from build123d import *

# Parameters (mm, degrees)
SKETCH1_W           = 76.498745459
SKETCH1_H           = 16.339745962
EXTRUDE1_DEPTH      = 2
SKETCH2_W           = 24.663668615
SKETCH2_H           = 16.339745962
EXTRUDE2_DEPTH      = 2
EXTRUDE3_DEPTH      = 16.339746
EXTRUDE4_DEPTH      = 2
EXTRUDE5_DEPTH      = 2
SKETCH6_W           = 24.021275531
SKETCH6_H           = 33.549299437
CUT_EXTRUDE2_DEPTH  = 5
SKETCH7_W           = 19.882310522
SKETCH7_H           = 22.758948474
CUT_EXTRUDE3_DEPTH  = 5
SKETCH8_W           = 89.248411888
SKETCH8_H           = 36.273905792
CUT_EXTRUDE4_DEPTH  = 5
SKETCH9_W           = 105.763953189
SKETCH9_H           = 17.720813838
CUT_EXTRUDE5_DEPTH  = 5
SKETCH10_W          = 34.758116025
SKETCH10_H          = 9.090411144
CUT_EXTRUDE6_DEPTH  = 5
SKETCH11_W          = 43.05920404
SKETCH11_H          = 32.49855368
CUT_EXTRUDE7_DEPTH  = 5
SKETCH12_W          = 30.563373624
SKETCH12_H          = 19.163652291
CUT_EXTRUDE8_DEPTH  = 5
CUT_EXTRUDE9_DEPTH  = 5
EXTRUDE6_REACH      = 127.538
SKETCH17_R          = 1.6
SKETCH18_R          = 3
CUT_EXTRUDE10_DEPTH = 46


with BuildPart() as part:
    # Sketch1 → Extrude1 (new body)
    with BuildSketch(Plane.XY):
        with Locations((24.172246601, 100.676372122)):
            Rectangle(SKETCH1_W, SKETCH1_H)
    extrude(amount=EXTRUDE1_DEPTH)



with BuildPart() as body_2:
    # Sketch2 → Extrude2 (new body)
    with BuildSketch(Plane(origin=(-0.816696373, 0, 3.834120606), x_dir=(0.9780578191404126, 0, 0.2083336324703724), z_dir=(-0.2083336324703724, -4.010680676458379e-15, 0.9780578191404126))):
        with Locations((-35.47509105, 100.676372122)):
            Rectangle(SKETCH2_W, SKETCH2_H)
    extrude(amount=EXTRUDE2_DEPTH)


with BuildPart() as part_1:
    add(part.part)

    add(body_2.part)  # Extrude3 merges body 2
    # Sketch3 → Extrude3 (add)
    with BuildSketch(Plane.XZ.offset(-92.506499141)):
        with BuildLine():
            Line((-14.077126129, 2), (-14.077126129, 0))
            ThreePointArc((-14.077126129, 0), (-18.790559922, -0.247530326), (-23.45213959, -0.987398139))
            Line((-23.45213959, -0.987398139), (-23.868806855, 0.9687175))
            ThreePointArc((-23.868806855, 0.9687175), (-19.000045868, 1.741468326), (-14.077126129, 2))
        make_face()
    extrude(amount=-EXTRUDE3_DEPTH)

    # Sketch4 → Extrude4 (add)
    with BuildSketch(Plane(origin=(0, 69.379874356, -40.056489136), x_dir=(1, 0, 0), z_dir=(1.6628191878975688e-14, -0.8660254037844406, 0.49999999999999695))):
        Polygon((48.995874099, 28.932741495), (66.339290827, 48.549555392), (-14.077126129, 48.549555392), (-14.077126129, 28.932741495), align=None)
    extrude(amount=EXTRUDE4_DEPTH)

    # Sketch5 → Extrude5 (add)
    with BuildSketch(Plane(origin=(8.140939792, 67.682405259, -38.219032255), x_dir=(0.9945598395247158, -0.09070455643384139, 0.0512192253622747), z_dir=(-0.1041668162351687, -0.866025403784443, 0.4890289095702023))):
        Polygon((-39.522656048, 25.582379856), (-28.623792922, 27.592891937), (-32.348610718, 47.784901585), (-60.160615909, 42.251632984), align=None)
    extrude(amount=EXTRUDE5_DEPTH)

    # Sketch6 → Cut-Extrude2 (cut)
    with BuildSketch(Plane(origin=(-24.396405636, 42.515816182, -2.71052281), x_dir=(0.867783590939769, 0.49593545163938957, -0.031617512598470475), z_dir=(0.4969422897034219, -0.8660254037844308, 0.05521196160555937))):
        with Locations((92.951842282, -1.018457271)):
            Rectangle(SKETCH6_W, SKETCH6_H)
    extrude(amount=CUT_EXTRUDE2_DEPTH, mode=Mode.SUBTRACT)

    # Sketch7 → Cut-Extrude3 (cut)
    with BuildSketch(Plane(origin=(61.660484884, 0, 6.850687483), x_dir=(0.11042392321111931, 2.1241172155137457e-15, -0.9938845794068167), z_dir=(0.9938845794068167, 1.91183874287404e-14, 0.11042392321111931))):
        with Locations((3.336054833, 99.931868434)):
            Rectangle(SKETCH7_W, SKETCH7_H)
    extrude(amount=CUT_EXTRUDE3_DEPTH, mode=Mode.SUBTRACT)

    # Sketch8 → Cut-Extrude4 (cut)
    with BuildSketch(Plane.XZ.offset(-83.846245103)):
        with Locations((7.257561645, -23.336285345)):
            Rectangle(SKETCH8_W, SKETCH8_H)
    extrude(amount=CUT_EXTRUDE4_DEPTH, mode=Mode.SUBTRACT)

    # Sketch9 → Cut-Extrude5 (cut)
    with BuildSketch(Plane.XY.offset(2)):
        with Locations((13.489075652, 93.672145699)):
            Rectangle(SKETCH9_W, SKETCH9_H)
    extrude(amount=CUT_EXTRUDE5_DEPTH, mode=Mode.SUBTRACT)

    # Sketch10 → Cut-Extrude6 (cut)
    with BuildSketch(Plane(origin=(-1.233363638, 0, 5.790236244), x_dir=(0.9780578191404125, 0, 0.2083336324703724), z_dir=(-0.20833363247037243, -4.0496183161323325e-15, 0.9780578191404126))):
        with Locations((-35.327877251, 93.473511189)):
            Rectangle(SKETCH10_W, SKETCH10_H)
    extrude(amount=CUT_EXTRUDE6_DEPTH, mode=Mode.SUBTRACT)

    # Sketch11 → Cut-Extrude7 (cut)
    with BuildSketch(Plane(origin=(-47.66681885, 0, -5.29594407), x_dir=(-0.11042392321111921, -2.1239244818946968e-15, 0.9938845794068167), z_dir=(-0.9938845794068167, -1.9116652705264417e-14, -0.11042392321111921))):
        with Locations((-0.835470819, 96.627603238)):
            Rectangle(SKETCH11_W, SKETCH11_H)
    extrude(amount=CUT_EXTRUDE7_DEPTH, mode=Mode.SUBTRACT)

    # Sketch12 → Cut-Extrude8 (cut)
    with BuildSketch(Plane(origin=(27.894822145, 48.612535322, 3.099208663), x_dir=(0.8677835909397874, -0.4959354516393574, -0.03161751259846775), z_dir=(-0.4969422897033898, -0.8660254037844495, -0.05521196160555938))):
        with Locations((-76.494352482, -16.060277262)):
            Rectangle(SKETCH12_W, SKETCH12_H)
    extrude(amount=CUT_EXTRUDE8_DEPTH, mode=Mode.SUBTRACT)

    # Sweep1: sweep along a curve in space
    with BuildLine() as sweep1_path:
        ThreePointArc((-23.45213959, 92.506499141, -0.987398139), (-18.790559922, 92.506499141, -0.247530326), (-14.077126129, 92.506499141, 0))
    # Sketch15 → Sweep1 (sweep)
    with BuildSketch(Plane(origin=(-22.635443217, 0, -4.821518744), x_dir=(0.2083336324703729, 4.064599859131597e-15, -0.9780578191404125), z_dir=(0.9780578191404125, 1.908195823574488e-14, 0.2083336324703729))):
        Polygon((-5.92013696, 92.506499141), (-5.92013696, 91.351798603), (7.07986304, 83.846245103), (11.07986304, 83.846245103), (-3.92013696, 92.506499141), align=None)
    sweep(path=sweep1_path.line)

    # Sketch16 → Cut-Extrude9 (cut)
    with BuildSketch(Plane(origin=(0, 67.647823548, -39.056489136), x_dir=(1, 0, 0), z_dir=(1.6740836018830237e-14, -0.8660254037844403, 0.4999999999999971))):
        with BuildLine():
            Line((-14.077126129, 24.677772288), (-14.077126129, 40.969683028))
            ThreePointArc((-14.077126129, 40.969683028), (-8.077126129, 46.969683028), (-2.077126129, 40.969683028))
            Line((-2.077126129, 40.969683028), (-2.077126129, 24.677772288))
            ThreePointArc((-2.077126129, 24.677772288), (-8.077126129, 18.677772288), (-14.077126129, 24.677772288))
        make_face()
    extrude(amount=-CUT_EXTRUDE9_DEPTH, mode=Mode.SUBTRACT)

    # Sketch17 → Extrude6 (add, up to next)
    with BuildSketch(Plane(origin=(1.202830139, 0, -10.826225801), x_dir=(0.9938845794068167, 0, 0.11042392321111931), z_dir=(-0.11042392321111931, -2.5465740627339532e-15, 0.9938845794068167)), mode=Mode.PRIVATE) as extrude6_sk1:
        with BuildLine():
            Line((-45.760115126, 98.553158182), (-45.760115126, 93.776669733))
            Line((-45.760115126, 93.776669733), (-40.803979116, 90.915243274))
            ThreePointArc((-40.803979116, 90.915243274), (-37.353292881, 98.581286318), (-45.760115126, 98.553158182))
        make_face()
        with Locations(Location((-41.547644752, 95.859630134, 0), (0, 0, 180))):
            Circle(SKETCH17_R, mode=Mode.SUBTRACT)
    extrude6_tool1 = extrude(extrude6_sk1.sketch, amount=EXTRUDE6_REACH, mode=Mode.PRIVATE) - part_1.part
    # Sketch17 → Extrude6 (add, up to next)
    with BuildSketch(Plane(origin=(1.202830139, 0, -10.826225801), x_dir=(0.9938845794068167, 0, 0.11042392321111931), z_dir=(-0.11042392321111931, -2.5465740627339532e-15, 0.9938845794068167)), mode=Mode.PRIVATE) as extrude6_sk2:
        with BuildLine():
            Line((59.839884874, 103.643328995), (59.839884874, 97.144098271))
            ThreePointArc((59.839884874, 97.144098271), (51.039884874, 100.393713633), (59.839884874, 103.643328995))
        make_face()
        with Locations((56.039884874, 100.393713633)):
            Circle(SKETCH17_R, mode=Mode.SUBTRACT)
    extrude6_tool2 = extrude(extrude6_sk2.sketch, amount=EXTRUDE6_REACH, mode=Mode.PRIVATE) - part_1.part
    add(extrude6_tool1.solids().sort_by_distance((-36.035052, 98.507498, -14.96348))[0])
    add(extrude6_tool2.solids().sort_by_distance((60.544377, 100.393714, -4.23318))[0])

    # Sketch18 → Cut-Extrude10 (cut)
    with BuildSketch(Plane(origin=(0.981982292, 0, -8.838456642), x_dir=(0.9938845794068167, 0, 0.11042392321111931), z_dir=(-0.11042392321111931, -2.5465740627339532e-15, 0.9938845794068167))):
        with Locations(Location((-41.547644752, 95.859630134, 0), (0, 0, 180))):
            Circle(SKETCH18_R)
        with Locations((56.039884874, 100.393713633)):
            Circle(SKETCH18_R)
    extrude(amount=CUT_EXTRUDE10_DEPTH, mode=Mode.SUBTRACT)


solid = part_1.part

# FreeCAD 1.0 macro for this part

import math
import FreeCAD as App
import Part
import Sketcher
Q = App.Units.Quantity

doc = App.newDocument("Part")
body = doc.addObject("PartDesign::Body", "Body")

# Sketch on XY plane
sketch1 = doc.addObject("Sketcher::SketchObject", "Sketch")
body.addObject(sketch1)
sketch1.AttachmentSupport = (doc.XY_Plane, [""])
sketch1.MapMode = "FlatFace"
sketch1.addGeometry(Part.LineSegment(App.Vector(-14.077126, 108.846245, 0), App.Vector(-14.077126, 92.506499, 0)), False)
sketch1.addGeometry(Part.LineSegment(App.Vector(-14.077126, 92.506499, 0), App.Vector(62.421619, 92.506499, 0)), False)
sketch1.addGeometry(Part.LineSegment(App.Vector(62.421619, 92.506499, 0), App.Vector(62.421619, 108.846245, 0)), False)
sketch1.addGeometry(Part.LineSegment(App.Vector(62.421619, 108.846245, 0), App.Vector(-14.077126, 108.846245, 0)), False)
sketch1.addConstraint(Sketcher.Constraint("Coincident", 0, 2, 1, 1))
sketch1.addConstraint(Sketcher.Constraint("Coincident", 1, 2, 2, 1))
sketch1.addConstraint(Sketcher.Constraint("Coincident", 2, 2, 3, 1))
sketch1.addConstraint(Sketcher.Constraint("Coincident", 3, 2, 0, 1))
sketch1.addConstraint(Sketcher.Constraint("Vertical", 0))
sketch1.addConstraint(Sketcher.Constraint("Horizontal", 1))
sketch1.addConstraint(Sketcher.Constraint("Vertical", 2))
sketch1.addConstraint(Sketcher.Constraint("Horizontal", 3))
sketch1.addConstraint(Sketcher.Constraint("DistanceY", -1, 1, 0, 2, 92.506499))
sketch1.addConstraint(Sketcher.Constraint("DistanceX", 1, 1, 1, 2, 76.498745))
sketch1.addConstraint(Sketcher.Constraint("DistanceY", 0, 2, 0, 1, 16.339746))
sketch1.addConstraint(Sketcher.Constraint("DistanceX", -1, 1, 1, 2, 62.421619))
pad1 = doc.addObject("PartDesign::Pad", "Pad")
body.addObject(pad1)
pad1.Profile = sketch1
pad1.Length = 2
body2 = doc.addObject("PartDesign::Body", "Body001")

# Sketch on an angled plane
sketch2 = doc.addObject("Sketcher::SketchObject", "Sketch001")
body2.addObject(sketch2)
sketch2.Placement = App.Placement(App.Vector(-0.816696, 0, 3.834121), App.Rotation(App.Vector(0.978057819, 0, 0.208333632), App.Vector(0, 1, 0), App.Vector(-0.208333632, 0, 0.978057819), "ZXY"))
sketch2.addGeometry(Part.LineSegment(App.Vector(-47.806925, 108.846245, 0), App.Vector(-47.806925, 92.506499, 0)), False)
sketch2.addGeometry(Part.LineSegment(App.Vector(-47.806925, 92.506499, 0), App.Vector(-23.143257, 92.506499, 0)), False)
sketch2.addGeometry(Part.LineSegment(App.Vector(-23.143257, 92.506499, 0), App.Vector(-23.143257, 108.846245, 0)), False)
sketch2.addGeometry(Part.LineSegment(App.Vector(-23.143257, 108.846245, 0), App.Vector(-47.806925, 108.846245, 0)), False)
sketch2.addConstraint(Sketcher.Constraint("Coincident", 0, 2, 1, 1))
sketch2.addConstraint(Sketcher.Constraint("Coincident", 1, 2, 2, 1))
sketch2.addConstraint(Sketcher.Constraint("Coincident", 2, 2, 3, 1))
sketch2.addConstraint(Sketcher.Constraint("Coincident", 3, 2, 0, 1))
sketch2.addConstraint(Sketcher.Constraint("Vertical", 0))
sketch2.addConstraint(Sketcher.Constraint("Horizontal", 1))
sketch2.addConstraint(Sketcher.Constraint("Vertical", 2))
sketch2.addConstraint(Sketcher.Constraint("Horizontal", 3))
sketch2.addConstraint(Sketcher.Constraint("DistanceX", 1, 1, 1, 2, 24.663669))
sketch2.addConstraint(Sketcher.Constraint("DistanceY", -1, 1, 0, 2, 92.506499))
sketch2.addConstraint(Sketcher.Constraint("DistanceY", 0, 2, 0, 1, 16.339746))
sketch2.addConstraint(Sketcher.Constraint("DistanceX", 0, 2, -1, 1, 47.806925))
pad2 = doc.addObject("PartDesign::Pad", "Pad001")
body2.addObject(pad2)
pad2.Profile = sketch2
pad2.Length = 2
body.AllowCompound = True
doc.recompute()

boolean = doc.addObject("PartDesign::Boolean", "Boolean")
body.addObject(boolean)
boolean.Type = "Fuse"
boolean.addObjects([body2])

# Sketch on XZ plane
sketch3 = doc.addObject("Sketcher::SketchObject", "Sketch002")
body.addObject(sketch3)
sketch3.AttachmentSupport = (doc.XZ_Plane, [""])
sketch3.MapMode = "FlatFace"
sketch3.AttachmentOffset = App.Placement(App.Vector(0, 0, -92.506499), App.Rotation())
sketch3.addGeometry(Part.LineSegment(App.Vector(-14.077126, 0, 0), App.Vector(-14.077126, 2, 0)), False)
sketch3.addGeometry(Part.ArcOfCircle(Part.Circle(App.Vector(-14.077126, -45, 0), App.Vector(0, 0, 1), 47), math.radians(90), math.radians(102.024717)), False)
sketch3.addGeometry(Part.LineSegment(App.Vector(-23.868807, 0.968718, 0), App.Vector(-23.45214, -0.987398, 0)), False)
sketch3.addGeometry(Part.ArcOfCircle(Part.Circle(App.Vector(-14.077126, -45, 0), App.Vector(0, 0, 1), 45), math.radians(90), math.radians(102.024717)), False)
sketch3.addConstraint(Sketcher.Constraint("Coincident", 0, 2, 1, 1))
sketch3.addConstraint(Sketcher.Constraint("Coincident", 1, 2, 2, 1))
sketch3.addConstraint(Sketcher.Constraint("Coincident", 2, 2, 3, 2))
sketch3.addConstraint(Sketcher.Constraint("Coincident", 3, 1, 0, 1))
sketch3.addConstraint(Sketcher.Constraint("Vertical", 0))
sketch3.addConstraint(Sketcher.Constraint("Coincident", 3, 3, 1, 3))
sketch3.addConstraint(Sketcher.Constraint("PointOnObject", 3, 1, -1))
sketch3.addConstraint(Sketcher.Constraint("Vertical", 3, 3, 0, 2))
sketch3.addConstraint(Sketcher.Constraint("Radius", 1, 47.0))
sketch3.addConstraint(Sketcher.Constraint("Radius", 3, 45.0))
sketch3.addConstraint(Sketcher.Constraint("DistanceY", 2, 2, -1, 1, 0.987398))
sketch3.addConstraint(Sketcher.Constraint("DistanceX", 2, 2, -1, 1, 23.45214))
sketch3.addConstraint(Sketcher.Constraint("DistanceX", 1, 2, 0, 2, 9.791681))
pad3 = doc.addObject("PartDesign::Pad", "Pad002")
body.addObject(pad3)
pad3.Profile = sketch3
pad3.Length = 16.339746
pad3.Reversed = True

# Sketch on an angled plane
sketch4 = doc.addObject("Sketcher::SketchObject", "Sketch003")
body.addObject(sketch4)
sketch4.Placement = App.Placement(App.Vector(0, 69.379874, -40.056489), App.Rotation(App.Vector(1, 0, 0), App.Vector(0, 0.5, 0.866025404), App.Vector(0, -0.866025404, 0.5), "ZXY"))
sketch4.addGeometry(Part.LineSegment(App.Vector(48.995874, 28.932742, 0), App.Vector(66.339291, 48.549555, 0)), False)
sketch4.addGeometry(Part.LineSegment(App.Vector(66.339291, 48.549555, 0), App.Vector(-14.077126, 48.549555, 0)), False)
sketch4.addGeometry(Part.LineSegment(App.Vector(-14.077126, 48.549555, 0), App.Vector(-14.077126, 28.932742, 0)), False)
sketch4.addGeometry(Part.LineSegment(App.Vector(-14.077126, 28.932742, 0), App.Vector(48.995874, 28.932742, 0)), False)
sketch4.addConstraint(Sketcher.Constraint("Coincident", 0, 2, 1, 1))
sketch4.addConstraint(Sketcher.Constraint("Coincident", 1, 2, 2, 1))
sketch4.addConstraint(Sketcher.Constraint("Coincident", 2, 2, 3, 1))
sketch4.addConstraint(Sketcher.Constraint("Coincident", 3, 2, 0, 1))
sketch4.addConstraint(Sketcher.Constraint("Horizontal", 1))
sketch4.addConstraint(Sketcher.Constraint("Vertical", 2))
sketch4.addConstraint(Sketcher.Constraint("Horizontal", 3))
sketch4.addConstraint(Sketcher.Constraint("DistanceX", 3, 1, 3, 2, 63.073))
sketch4.addConstraint(Sketcher.Constraint("DistanceX", 1, 2, 1, 1, 80.416417))
sketch4.addConstraint(Sketcher.Constraint("DistanceY", 2, 2, 2, 1, 19.616814))
sketch4.addConstraint(Sketcher.Constraint("DistanceX", -1, 1, 0, 2, 66.339291))
sketch4.addConstraint(Sketcher.Constraint("DistanceY", -1, 1, 2, 2, 28.932742))
pad4 = doc.addObject("PartDesign::Pad", "Pad003")
body.addObject(pad4)
pad4.Profile = sketch4
pad4.Length = 2

# Sketch on an angled plane
sketch5 = doc.addObject("Sketcher::SketchObject", "Sketch004")
body.addObject(sketch5)
sketch5.Placement = App.Placement(App.Vector(8.14094, 67.682405, -38.219032), App.Rotation(App.Vector(0.99455984, -0.090704556, 0.051219225), App.Vector(0, 0.491703858, 0.870762492), App.Vector(-0.104166816, -0.866025404, 0.48902891), "ZXY"))
sketch5.addGeometry(Part.LineSegment(App.Vector(-39.522656, 25.58238, 0), App.Vector(-28.623793, 27.592892, 0)), False)
sketch5.addGeometry(Part.LineSegment(App.Vector(-28.623793, 27.592892, 0), App.Vector(-32.348611, 47.784902, 0)), False)
sketch5.addGeometry(Part.LineSegment(App.Vector(-32.348611, 47.784902, 0), App.Vector(-60.160616, 42.251633, 0)), False)
sketch5.addGeometry(Part.LineSegment(App.Vector(-60.160616, 42.251633, 0), App.Vector(-39.522656, 25.58238, 0)), False)
sketch5.addConstraint(Sketcher.Constraint("Coincident", 0, 2, 1, 1))
sketch5.addConstraint(Sketcher.Constraint("Coincident", 1, 2, 2, 1))
sketch5.addConstraint(Sketcher.Constraint("Coincident", 2, 2, 3, 1))
sketch5.addConstraint(Sketcher.Constraint("Coincident", 3, 2, 0, 1))
sketch5.addConstraint(Sketcher.Constraint("Perpendicular", 0, 1))
sketch5.addConstraint(Sketcher.Constraint("DistanceY", -1, 1, 1, 2, 47.784902))
sketch5.addConstraint(Sketcher.Constraint("Distance", 0, 11.082751))
sketch5.addConstraint(Sketcher.Constraint("Distance", 3, 26.529029))
sketch5.addConstraint(Sketcher.Constraint("DistanceY", -1, 1, 0, 2, 27.592892))
sketch5.addConstraint(Sketcher.Constraint("DistanceX", 1, 2, -1, 1, 32.348611))
sketch5.addConstraint(Sketcher.Constraint("DistanceY", -1, 1, 3, 2, 25.58238))
sketch5.addConstraint(Sketcher.Constraint("DistanceY", 2, 2, 1, 2, 5.533269))
pad5 = doc.addObject("PartDesign::Pad", "Pad004")
body.addObject(pad5)
pad5.Profile = sketch5
pad5.Length = 2

# Sketch on an angled plane
sketch6 = doc.addObject("Sketcher::SketchObject", "Sketch005")
body.addObject(sketch6)
sketch6.Placement = App.Placement(App.Vector(-24.396406, 42.515816, -2.710523), App.Rotation(App.Vector(0.867783591, 0.495935452, -0.031617513), App.Vector(0, 0.063624114, 0.997973934), App.Vector(0.49694229, -0.866025404, 0.055211962), "ZXY"))
sketch6.addGeometry(Part.LineSegment(App.Vector(80.941205, 15.756192, 0), App.Vector(80.941205, -17.793107, 0)), False)
sketch6.addGeometry(Part.LineSegment(App.Vector(80.941205, -17.793107, 0), App.Vector(104.96248, -17.793107, 0)), False)
sketch6.addGeometry(Part.LineSegment(App.Vector(104.96248, -17.793107, 0), App.Vector(104.96248, 15.756192, 0)), False)
sketch6.addGeometry(Part.LineSegment(App.Vector(104.96248, 15.756192, 0), App.Vector(80.941205, 15.756192, 0)), False)
sketch6.addConstraint(Sketcher.Constraint("Coincident", 0, 2, 1, 1))
sketch6.addConstraint(Sketcher.Constraint("Coincident", 1, 2, 2, 1))
sketch6.addConstraint(Sketcher.Constraint("Coincident", 2, 2, 3, 1))
sketch6.addConstraint(Sketcher.Constraint("Coincident", 3, 2, 0, 1))
sketch6.addConstraint(Sketcher.Constraint("Vertical", 0))
sketch6.addConstraint(Sketcher.Constraint("Horizontal", 1))
sketch6.addConstraint(Sketcher.Constraint("Vertical", 2))
sketch6.addConstraint(Sketcher.Constraint("Horizontal", 3))
sketch6.addConstraint(Sketcher.Constraint("DistanceY", 0, 2, 0, 1, 33.549299))
sketch6.addConstraint(Sketcher.Constraint("DistanceX", 1, 1, 1, 2, 24.021276))
sketch6.addConstraint(Sketcher.Constraint("DistanceX", -1, 1, 1, 2, 104.96248))
sketch6.addConstraint(Sketcher.Constraint("DistanceY", 0, 2, -1, 1, 17.793107))
pocket1 = doc.addObject("PartDesign::Pocket", "Pocket")
body.addObject(pocket1)
pocket1.Profile = sketch6
pocket1.Length = 5
pocket1.Reversed = True

# Sketch on an angled plane
sketch7 = doc.addObject("Sketcher::SketchObject", "Sketch006")
body.addObject(sketch7)
sketch7.Placement = App.Placement(App.Vector(61.660485, 0, 6.850687), App.Rotation(App.Vector(0.110423923, 0, -0.993884579), App.Vector(0, 0.999999999, 0), App.Vector(0.993884579, 0, 0.110423923), "ZXY"))
sketch7.addGeometry(Part.LineSegment(App.Vector(-6.6051, 111.311342, 0), App.Vector(-6.6051, 88.552394, 0)), False)
sketch7.addGeometry(Part.LineSegment(App.Vector(-6.6051, 88.552394, 0), App.Vector(13.27721, 88.552394, 0)), False)
sketch7.addGeometry(Part.LineSegment(App.Vector(13.27721, 88.552394, 0), App.Vector(13.27721, 111.311342, 0)), False)
sketch7.addGeometry(Part.LineSegment(App.Vector(13.27721, 111.311342, 0), App.Vector(-6.6051, 111.311342, 0)), False)
sketch7.addConstraint(Sketcher.Constraint("Coincident", 0, 2, 1, 1))
sketch7.addConstraint(Sketcher.Constraint("Coincident", 1, 2, 2, 1))
sketch7.addConstraint(Sketcher.Constraint("Coincident", 2, 2, 3, 1))
sketch7.addConstraint(Sketcher.Constraint("Coincident", 3, 2, 0, 1))
sketch7.addConstraint(Sketcher.Constraint("Vertical", 0))
sketch7.addConstraint(Sketcher.Constraint("Horizontal", 1))
sketch7.addConstraint(Sketcher.Constraint("Vertical", 2))
sketch7.addConstraint(Sketcher.Constraint("Horizontal", 3))
sketch7.addConstraint(Sketcher.Constraint("DistanceX", 1, 1, 1, 2, 19.882311))
sketch7.addConstraint(Sketcher.Constraint("DistanceY", 0, 2, 0, 1, 22.758948))
sketch7.addConstraint(Sketcher.Constraint("DistanceX", 0, 2, -1, 1, 6.6051))
sketch7.addConstraint(Sketcher.Constraint("DistanceY", -1, 1, 0, 2, 88.552394))
pocket2 = doc.addObject("PartDesign::Pocket", "Pocket001")
body.addObject(pocket2)
pocket2.Profile = sketch7
pocket2.Length = 5
pocket2.Reversed = True

# Sketch on XZ plane
sketch8 = doc.addObject("Sketcher::SketchObject", "Sketch007")
body.addObject(sketch8)
sketch8.AttachmentSupport = (doc.XZ_Plane, [""])
sketch8.MapMode = "FlatFace"
sketch8.AttachmentOffset = App.Placement(App.Vector(0, 0, -83.846245), App.Rotation())
sketch8.addGeometry(Part.LineSegment(App.Vector(-37.366644, -5.199332, 0), App.Vector(-37.366644, -41.473238, 0)), False)
sketch8.addGeometry(Part.LineSegment(App.Vector(-37.366644, -41.473238, 0), App.Vector(51.881768, -41.473238, 0)), False)
sketch8.addGeometry(Part.LineSegment(App.Vector(51.881768, -41.473238, 0), App.Vector(51.881768, -5.199332, 0)), False)
sketch8.addGeometry(Part.LineSegment(App.Vector(51.881768, -5.199332, 0), App.Vector(-37.366644, -5.199332, 0)), False)
sketch8.addConstraint(Sketcher.Constraint("Coincident", 0, 2, 1, 1))
sketch8.addConstraint(Sketcher.Constraint("Coincident", 1, 2, 2, 1))
sketch8.addConstraint(Sketcher.Constraint("Coincident", 2, 2, 3, 1))
sketch8.addConstraint(Sketcher.Constraint("Coincident", 3, 2, 0, 1))
sketch8.addConstraint(Sketcher.Constraint("Vertical", 0))
sketch8.addConstraint(Sketcher.Constraint("Horizontal", 1))
sketch8.addConstraint(Sketcher.Constraint("Vertical", 2))
sketch8.addConstraint(Sketcher.Constraint("Horizontal", 3))
sketch8.addConstraint(Sketcher.Constraint("DistanceX", 1, 1, 1, 2, 89.248412))
sketch8.addConstraint(Sketcher.Constraint("DistanceY", 0, 2, 0, 1, 36.273906))
sketch8.addConstraint(Sketcher.Constraint("DistanceY", 0, 2, -1, 1, 41.473238))
sketch8.addConstraint(Sketcher.Constraint("DistanceX", 0, 2, -1, 1, 37.366644))
pocket3 = doc.addObject("PartDesign::Pocket", "Pocket002")
body.addObject(pocket3)
pocket3.Profile = sketch8
pocket3.Length = 5
pocket3.Reversed = True

# Sketch on XY plane
sketch9 = doc.addObject("Sketcher::SketchObject", "Sketch008")
body.addObject(sketch9)
sketch9.AttachmentSupport = (doc.XY_Plane, [""])
sketch9.MapMode = "FlatFace"
sketch9.AttachmentOffset = App.Placement(App.Vector(0, 0, 2), App.Rotation())
sketch9.addGeometry(Part.LineSegment(App.Vector(-39.392901, 102.532553, 0), App.Vector(-39.392901, 84.811739, 0)), False)
sketch9.addGeometry(Part.LineSegment(App.Vector(-39.392901, 84.811739, 0), App.Vector(66.371052, 84.811739, 0)), False)
sketch9.addGeometry(Part.LineSegment(App.Vector(66.371052, 84.811739, 0), App.Vector(66.371052, 102.532553, 0)), False)
sketch9.addGeometry(Part.LineSegment(App.Vector(66.371052, 102.532553, 0), App.Vector(-39.392901, 102.532553, 0)), False)
sketch9.addConstraint(Sketcher.Constraint("Coincident", 0, 2, 1, 1))
sketch9.addConstraint(Sketcher.Constraint("Coincident", 1, 2, 2, 1))
sketch9.addConstraint(Sketcher.Constraint("Coincident", 2, 2, 3, 1))
sketch9.addConstraint(Sketcher.Constraint("Coincident", 3, 2, 0, 1))
sketch9.addConstraint(Sketcher.Constraint("Vertical", 0))
sketch9.addConstraint(Sketcher.Constraint("Horizontal", 1))
sketch9.addConstraint(Sketcher.Constraint("Vertical", 2))
sketch9.addConstraint(Sketcher.Constraint("Horizontal", 3))
sketch9.addConstraint(Sketcher.Constraint("DistanceX", 0, 2, -1, 1, 39.392901))
sketch9.addConstraint(Sketcher.Constraint("DistanceX", 1, 1, 1, 2, 105.763953))
sketch9.addConstraint(Sketcher.Constraint("DistanceY", 0, 2, 0, 1, 17.720814))
sketch9.addConstraint(Sketcher.Constraint("DistanceY", -1, 1, 0, 2, 84.811739))
pocket4 = doc.addObject("PartDesign::Pocket", "Pocket003")
body.addObject(pocket4)
pocket4.Profile = sketch9
pocket4.Length = 5
pocket4.Reversed = True

# Sketch on an angled plane
sketch10 = doc.addObject("Sketcher::SketchObject", "Sketch009")
body.addObject(sketch10)
sketch10.Placement = App.Placement(App.Vector(-1.233364, 0, 5.790236), App.Rotation(App.Vector(0.978057819, 0, 0.208333632), App.Vector(0, 1, 0), App.Vector(-0.208333632, 0, 0.978057819), "ZXY"))
sketch10.addGeometry(Part.LineSegment(App.Vector(-52.706935, 98.018717, 0), App.Vector(-52.706935, 88.928306, 0)), False)
sketch10.addGeometry(Part.LineSegment(App.Vector(-52.706935, 88.928306, 0), App.Vector(-17.948819, 88.928306, 0)), False)
sketch10.addGeometry(Part.LineSegment(App.Vector(-17.948819, 88.928306, 0), App.Vector(-17.948819, 98.018717, 0)), False)
sketch10.addGeometry(Part.LineSegment(App.Vector(-17.948819, 98.018717, 0), App.Vector(-52.706935, 98.018717, 0)), False)
sketch10.addConstraint(Sketcher.Constraint("Coincident", 0, 2, 1, 1))
sketch10.addConstraint(Sketcher.Constraint("Coincident", 1, 2, 2, 1))
sketch10.addConstraint(Sketcher.Constraint("Coincident", 2, 2, 3, 1))
sketch10.addConstraint(Sketcher.Constraint("Coincident", 3, 2, 0, 1))
sketch10.addConstraint(Sketcher.Constraint("Vertical", 0))
sketch10.addConstraint(Sketcher.Constraint("Horizontal", 1))
sketch10.addConstraint(Sketcher.Constraint("Vertical", 2))
sketch10.addConstraint(Sketcher.Constraint("Horizontal", 3))
sketch10.addConstraint(Sketcher.Constraint("DistanceY", 0, 2, 0, 1, 9.090411))
sketch10.addConstraint(Sketcher.Constraint("DistanceX", 1, 1, 1, 2, 34.758116))
sketch10.addConstraint(Sketcher.Constraint("DistanceX", 1, 2, -1, 1, 17.948819))
sketch10.addConstraint(Sketcher.Constraint("DistanceY", -1, 1, 0, 2, 88.928306))
pocket5 = doc.addObject("PartDesign::Pocket", "Pocket004")
body.addObject(pocket5)
pocket5.Profile = sketch10
pocket5.Length = 5
pocket5.Reversed = True

# Sketch on an angled plane
sketch11 = doc.addObject("Sketcher::SketchObject", "Sketch010")
body.addObject(sketch11)
sketch11.Placement = App.Placement(App.Vector(-47.666819, 0, -5.295944), App.Rotation(App.Vector(-0.110423923, 0, 0.993884579), App.Vector(0, 0.999999999, 0), App.Vector(-0.993884579, 0, -0.110423923), "ZXY"))
sketch11.addGeometry(Part.LineSegment(App.Vector(-22.365073, 112.87688, 0), App.Vector(-22.365073, 80.378326, 0)), False)
sketch11.addGeometry(Part.LineSegment(App.Vector(-22.365073, 80.378326, 0), App.Vector(20.694131, 80.378326, 0)), False)
sketch11.addGeometry(Part.LineSegment(App.Vector(20.694131, 80.378326, 0), App.Vector(20.694131, 112.87688, 0)), False)
sketch11.addGeometry(Part.LineSegment(App.Vector(20.694131, 112.87688, 0), App.Vector(-22.365073, 112.87688, 0)), False)
sketch11.addConstraint(Sketcher.Constraint("Coincident", 0, 2, 1, 1))
sketch11.addConstraint(Sketcher.Constraint("Coincident", 1, 2, 2, 1))
sketch11.addConstraint(Sketcher.Constraint("Coincident", 2, 2, 3, 1))
sketch11.addConstraint(Sketcher.Constraint("Coincident", 3, 2, 0, 1))
sketch11.addConstraint(Sketcher.Constraint("Vertical", 0))
sketch11.addConstraint(Sketcher.Constraint("Horizontal", 1))
sketch11.addConstraint(Sketcher.Constraint("Vertical", 2))
sketch11.addConstraint(Sketcher.Constraint("Horizontal", 3))
sketch11.addConstraint(Sketcher.Constraint("DistanceX", 1, 1, 1, 2, 43.059204))
sketch11.addConstraint(Sketcher.Constraint("DistanceY", 0, 2, 0, 1, 32.498554))
sketch11.addConstraint(Sketcher.Constraint("DistanceX", -1, 1, 1, 2, 20.694131))
sketch11.addConstraint(Sketcher.Constraint("DistanceY", -1, 1, 2, 2, 112.87688))
pocket6 = doc.addObject("PartDesign::Pocket", "Pocket005")
body.addObject(pocket6)
pocket6.Profile = sketch11
pocket6.Length = 5
pocket6.Reversed = True

# Sketch on an angled plane
sketch12 = doc.addObject("Sketcher::SketchObject", "Sketch011")
body.addObject(sketch12)
sketch12.Placement = App.Placement(App.Vector(27.894822, 48.612535, 3.099209), App.Rotation(App.Vector(0.867783591, -0.495935452, -0.031617513), App.Vector(0, -0.063624114, 0.997973934), App.Vector(-0.49694229, -0.866025404, -0.055211962), "ZXY"))
sketch12.addGeometry(Part.LineSegment(App.Vector(-91.776039, -6.478451, 0), App.Vector(-91.776039, -25.642103, 0)), False)
sketch12.addGeometry(Part.LineSegment(App.Vector(-91.776039, -25.642103, 0), App.Vector(-61.212666, -25.642103, 0)), False)
sketch12.addGeometry(Part.LineSegment(App.Vector(-61.212666, -25.642103, 0), App.Vector(-61.212666, -6.478451, 0)), False)
sketch12.addGeometry(Part.LineSegment(App.Vector(-61.212666, -6.478451, 0), App.Vector(-91.776039, -6.478451, 0)), False)
sketch12.addConstraint(Sketcher.Constraint("Coincident", 0, 2, 1, 1))
sketch12.addConstraint(Sketcher.Constraint("Coincident", 1, 2, 2, 1))
sketch12.addConstraint(Sketcher.Constraint("Coincident", 2, 2, 3, 1))
sketch12.addConstraint(Sketcher.Constraint("Coincident", 3, 2, 0, 1))
sketch12.addConstraint(Sketcher.Constraint("Vertical", 0))
sketch12.addConstraint(Sketcher.Constraint("Horizontal", 1))
sketch12.addConstraint(Sketcher.Constraint("Vertical", 2))
sketch12.addConstraint(Sketcher.Constraint("Horizontal", 3))
sketch12.addConstraint(Sketcher.Constraint("DistanceX", 1, 1, 1, 2, 30.563374))
sketch12.addConstraint(Sketcher.Constraint("DistanceY", 0, 2, 0, 1, 19.163652))
sketch12.addConstraint(Sketcher.Constraint("DistanceX", 0, 2, -1, 1, 91.776039))
sketch12.addConstraint(Sketcher.Constraint("DistanceY", 2, 2, -1, 1, 6.478451))
pocket7 = doc.addObject("PartDesign::Pocket", "Pocket006")
body.addObject(pocket7)
pocket7.Profile = sketch12
pocket7.Length = 5
pocket7.Reversed = True

# Sketch on an angled plane
sketch13 = doc.addObject("Sketcher::SketchObject", "Sketch012")
body.addObject(sketch13)
sketch13.Placement = App.Placement(App.Vector(-22.635443, 0, -4.821519), App.Rotation(App.Vector(0.208333632, 0, -0.978057819), App.Vector(0, 1, 0), App.Vector(0.978057819, 0, 0.208333632), "ZXY"))
sketch13.addGeometry(Part.LineSegment(App.Vector(-5.920137, 92.506499, 0), App.Vector(-5.920137, 91.351799, 0)), False)
sketch13.addGeometry(Part.LineSegment(App.Vector(-5.920137, 91.351799, 0), App.Vector(7.079863, 83.846245, 0)), False)
sketch13.addGeometry(Part.LineSegment(App.Vector(7.079863, 83.846245, 0), App.Vector(11.079863, 83.846245, 0)), False)
sketch13.addGeometry(Part.LineSegment(App.Vector(11.079863, 83.846245, 0), App.Vector(-3.920137, 92.506499, 0)), False)
sketch13.addGeometry(Part.LineSegment(App.Vector(-3.920137, 92.506499, 0), App.Vector(-5.920137, 92.506499, 0)), False)
sketch13.addConstraint(Sketcher.Constraint("Coincident", 0, 2, 1, 1))
sketch13.addConstraint(Sketcher.Constraint("Coincident", 1, 2, 2, 1))
sketch13.addConstraint(Sketcher.Constraint("Coincident", 2, 2, 3, 1))
sketch13.addConstraint(Sketcher.Constraint("Coincident", 3, 2, 4, 1))
sketch13.addConstraint(Sketcher.Constraint("Coincident", 4, 2, 0, 1))
sketch13.addConstraint(Sketcher.Constraint("Vertical", 0))
sketch13.addConstraint(Sketcher.Constraint("Horizontal", 2))
sketch13.addConstraint(Sketcher.Constraint("Horizontal", 4))
sketch13.addConstraint(Sketcher.Constraint("Parallel", 1, 3))
sketch13.addConstraint(Sketcher.Constraint("DistanceX", 2, 1, 2, 2, 4.0))
sketch13.addConstraint(Sketcher.Constraint("DistanceX", 4, 2, 4, 1, 2.0))
sketch13.addConstraint(Sketcher.Constraint("Angle", 1, Q("-30 deg")))
sketch13.addConstraint(Sketcher.Constraint("DistanceX", 0, 2, 1, 2, 13.0))
sketch13.addConstraint(Sketcher.Constraint("DistanceY", -1, 1, 0, 2, 91.351799))
sketch13.addConstraint(Sketcher.Constraint("DistanceX", 0, 2, -1, 1, 5.920137))

# Sketch on XZ plane
sketch14 = doc.addObject("Sketcher::SketchObject", "Sketch013")
body.addObject(sketch14)
sketch14.AttachmentSupport = (doc.XZ_Plane, [""])
sketch14.MapMode = "FlatFace"
sketch14.AttachmentOffset = App.Placement(App.Vector(0, 0, -92.506499), App.Rotation())
sketch14.addGeometry(Part.ArcOfCircle(Part.Circle(App.Vector(-14.077126, -45, 0), App.Vector(0, 0, 1), 45), math.radians(90), math.radians(102.024717)), False)
sketch14.addConstraint(Sketcher.Constraint("PointOnObject", 0, 1, -1))
sketch14.addConstraint(Sketcher.Constraint("Radius", 0, 45.0))
sketch14.addConstraint(Sketcher.Constraint("DistanceY", 0, 2, -1, 1, 0.987398))
sketch14.addConstraint(Sketcher.Constraint("DistanceX", 0, 2, -1, 1, 23.45214))
sketch14.addConstraint(Sketcher.Constraint("DistanceX", 0, 1, -1, 1, 14.077126))
doc.recompute()

additivepipe = doc.addObject("PartDesign::AdditivePipe", "AdditivePipe")
body.addObject(additivepipe)
additivepipe.Profile = sketch13
additivepipe.Spine = (sketch14, ["Edge1"])

# Sketch on an angled plane
sketch15 = doc.addObject("Sketcher::SketchObject", "Sketch014")
body.addObject(sketch15)
sketch15.Placement = App.Placement(App.Vector(0, 67.647824, -39.056489), App.Rotation(App.Vector(1, 0, 0), App.Vector(0, 0.5, 0.866025404), App.Vector(0, -0.866025404, 0.5), "ZXY"))
sketch15.addGeometry(Part.LineSegment(App.Vector(-14.077126, 40.969683, 0), App.Vector(-14.077126, 24.677772, 0)), False)
sketch15.addGeometry(Part.ArcOfCircle(Part.Circle(App.Vector(-8.077126, 24.677772, 0), App.Vector(0, 0, 1), 6), math.radians(180), math.radians(360)), False)
sketch15.addGeometry(Part.LineSegment(App.Vector(-2.077126, 24.677772, 0), App.Vector(-2.077126, 40.969683, 0)), False)
sketch15.addGeometry(Part.ArcOfCircle(Part.Circle(App.Vector(-8.077126, 40.969683, 0), App.Vector(0, 0, 1), 6), math.radians(0), math.radians(180)), False)
sketch15.addConstraint(Sketcher.Constraint("Tangent", 0, 2, 1, 1))
sketch15.addConstraint(Sketcher.Constraint("Tangent", 1, 2, 2, 1))
sketch15.addConstraint(Sketcher.Constraint("Tangent", 2, 2, 3, 1))
sketch15.addConstraint(Sketcher.Constraint("Tangent", 3, 2, 0, 1))
sketch15.addConstraint(Sketcher.Constraint("Vertical", 0))
sketch15.addConstraint(Sketcher.Constraint("Vertical", 2))
sketch15.addConstraint(Sketcher.Constraint("Radius", 1, 6.0))
sketch15.addConstraint(Sketcher.Constraint("DistanceY", 0, 2, 0, 1, 16.291911))
sketch15.addConstraint(Sketcher.Constraint("DistanceX", 1, 3, -1, 1, 8.077126))
sketch15.addConstraint(Sketcher.Constraint("DistanceY", -1, 1, 1, 3, 24.677772))
pocket8 = doc.addObject("PartDesign::Pocket", "Pocket007")
body.addObject(pocket8)
pocket8.Profile = sketch15
pocket8.Length = 5

# Sketch on an angled plane
sketch16 = doc.addObject("Sketcher::SketchObject", "Sketch015")
body.addObject(sketch16)
sketch16.Placement = App.Placement(App.Vector(1.20283, 0, -10.826226), App.Rotation(App.Vector(0.993884579, 0, 0.110423923), App.Vector(0, 0.999999999, 0), App.Vector(-0.110423923, 0, 0.993884579), "ZXY"))
sketch16.addGeometry(Part.LineSegment(App.Vector(-45.760115, 98.553158, 0), App.Vector(-45.760115, 93.77667, 0)), False)
sketch16.addGeometry(Part.LineSegment(App.Vector(-45.760115, 93.77667, 0), App.Vector(-40.803979, 90.915243, 0)), False)
sketch16.addGeometry(Part.ArcOfCircle(Part.Circle(App.Vector(-41.547645, 95.85963, 0), App.Vector(0, 0, 1), 5), math.radians(-81.446483), math.radians(147.404433)), False)
sketch16.addGeometry(Part.Circle(App.Vector(-41.547645, 95.85963, 0), App.Vector(0, 0, 1), 1.6), False)
sketch16.addConstraint(Sketcher.Constraint("Coincident", 0, 2, 1, 1))
sketch16.addConstraint(Sketcher.Constraint("Coincident", 1, 2, 2, 1))
sketch16.addConstraint(Sketcher.Constraint("Coincident", 2, 2, 0, 1))
sketch16.addConstraint(Sketcher.Constraint("Vertical", 0))
sketch16.addConstraint(Sketcher.Constraint("Coincident", 3, 3, 2, 3))
sketch16.addConstraint(Sketcher.Constraint("Radius", 2, 5.0))
sketch16.addConstraint(Sketcher.Constraint("Diameter", 3, 3.2))
sketch16.addConstraint(Sketcher.Constraint("Angle", 1, Q("-30 deg")))
sketch16.addConstraint(Sketcher.Constraint("DistanceY", 0, 2, 0, 1, 4.776488))
sketch16.addConstraint(Sketcher.Constraint("DistanceY", -1, 1, 2, 3, 95.85963))
sketch16.addConstraint(Sketcher.Constraint("DistanceY", -1, 1, 0, 2, 93.77667))
sketch16.addConstraint(Sketcher.Constraint("DistanceX", 1, 2, -1, 1, 40.803979))
pad6 = doc.addObject("PartDesign::Pad", "Pad005")
body.addObject(pad6)
pad6.Profile = sketch16
pad6.Type = "UpToFirst"

# Sketch on an angled plane
sketch17 = doc.addObject("Sketcher::SketchObject", "Sketch016")
body.addObject(sketch17)
sketch17.Placement = App.Placement(App.Vector(1.20283, 0, -10.826226), App.Rotation(App.Vector(0.993884579, 0, 0.110423923), App.Vector(0, 0.999999999, 0), App.Vector(-0.110423923, 0, 0.993884579), "ZXY"))
sketch17.addGeometry(Part.LineSegment(App.Vector(59.839885, 97.144098, 0), App.Vector(59.839885, 103.643329, 0)), False)
sketch17.addGeometry(Part.ArcOfCircle(Part.Circle(App.Vector(56.039885, 100.393713, 0), App.Vector(0, 0, 1), 5), math.radians(40.535802), math.radians(319.464198)), False)
sketch17.addGeometry(Part.Circle(App.Vector(56.039885, 100.393713, 0), App.Vector(0, 0, 1), 1.6), False)
sketch17.addConstraint(Sketcher.Constraint("Coincident", 0, 1, 1, 2))
sketch17.addConstraint(Sketcher.Constraint("Coincident", 1, 1, 0, 2))
sketch17.addConstraint(Sketcher.Constraint("Vertical", 0))
sketch17.addConstraint(Sketcher.Constraint("Coincident", 2, 3, 1, 3))
sketch17.addConstraint(Sketcher.Constraint("Radius", 1, 5.0))
sketch17.addConstraint(Sketcher.Constraint("Diameter", 2, 3.2))
sketch17.addConstraint(Sketcher.Constraint("DistanceX", 1, 3, 0, 1, 3.8))
sketch17.addConstraint(Sketcher.Constraint("DistanceY", -1, 1, 0, 1, 97.144098))
sketch17.addConstraint(Sketcher.Constraint("DistanceX", -1, 1, 1, 3, 56.039885))
pad7 = doc.addObject("PartDesign::Pad", "Pad006")
body.addObject(pad7)
pad7.Profile = sketch17
pad7.Type = "UpToFirst"

# Sketch on an angled plane
sketch18 = doc.addObject("Sketcher::SketchObject", "Sketch017")
body.addObject(sketch18)
sketch18.Placement = App.Placement(App.Vector(0.981982, 0, -8.838457), App.Rotation(App.Vector(0.993884579, 0, 0.110423923), App.Vector(0, 0.999999999, 0), App.Vector(-0.110423923, 0, 0.993884579), "ZXY"))
sketch18.addGeometry(Part.Circle(App.Vector(-41.547645, 95.85963, 0), App.Vector(0, 0, 1), 3), False)
sketch18.addGeometry(Part.Circle(App.Vector(56.039885, 100.393713, 0), App.Vector(0, 0, 1), 3), False)
sketch18.addConstraint(Sketcher.Constraint("Equal", 0, 1))
sketch18.addConstraint(Sketcher.Constraint("Diameter", 0, 6.0))
sketch18.addConstraint(Sketcher.Constraint("DistanceY", -1, 1, 0, 3, 95.85963))
sketch18.addConstraint(Sketcher.Constraint("DistanceX", 0, 3, 1, 3, 97.58753))
sketch18.addConstraint(Sketcher.Constraint("DistanceX", 0, 3, -1, 1, 41.547645))
sketch18.addConstraint(Sketcher.Constraint("DistanceY", -1, 1, 1, 3, 100.393713))
pocket9 = doc.addObject("PartDesign::Pocket", "Pocket008")
body.addObject(pocket9)
pocket9.Profile = sketch18
pocket9.Length = 46
pocket9.Reversed = True

doc.recompute()
